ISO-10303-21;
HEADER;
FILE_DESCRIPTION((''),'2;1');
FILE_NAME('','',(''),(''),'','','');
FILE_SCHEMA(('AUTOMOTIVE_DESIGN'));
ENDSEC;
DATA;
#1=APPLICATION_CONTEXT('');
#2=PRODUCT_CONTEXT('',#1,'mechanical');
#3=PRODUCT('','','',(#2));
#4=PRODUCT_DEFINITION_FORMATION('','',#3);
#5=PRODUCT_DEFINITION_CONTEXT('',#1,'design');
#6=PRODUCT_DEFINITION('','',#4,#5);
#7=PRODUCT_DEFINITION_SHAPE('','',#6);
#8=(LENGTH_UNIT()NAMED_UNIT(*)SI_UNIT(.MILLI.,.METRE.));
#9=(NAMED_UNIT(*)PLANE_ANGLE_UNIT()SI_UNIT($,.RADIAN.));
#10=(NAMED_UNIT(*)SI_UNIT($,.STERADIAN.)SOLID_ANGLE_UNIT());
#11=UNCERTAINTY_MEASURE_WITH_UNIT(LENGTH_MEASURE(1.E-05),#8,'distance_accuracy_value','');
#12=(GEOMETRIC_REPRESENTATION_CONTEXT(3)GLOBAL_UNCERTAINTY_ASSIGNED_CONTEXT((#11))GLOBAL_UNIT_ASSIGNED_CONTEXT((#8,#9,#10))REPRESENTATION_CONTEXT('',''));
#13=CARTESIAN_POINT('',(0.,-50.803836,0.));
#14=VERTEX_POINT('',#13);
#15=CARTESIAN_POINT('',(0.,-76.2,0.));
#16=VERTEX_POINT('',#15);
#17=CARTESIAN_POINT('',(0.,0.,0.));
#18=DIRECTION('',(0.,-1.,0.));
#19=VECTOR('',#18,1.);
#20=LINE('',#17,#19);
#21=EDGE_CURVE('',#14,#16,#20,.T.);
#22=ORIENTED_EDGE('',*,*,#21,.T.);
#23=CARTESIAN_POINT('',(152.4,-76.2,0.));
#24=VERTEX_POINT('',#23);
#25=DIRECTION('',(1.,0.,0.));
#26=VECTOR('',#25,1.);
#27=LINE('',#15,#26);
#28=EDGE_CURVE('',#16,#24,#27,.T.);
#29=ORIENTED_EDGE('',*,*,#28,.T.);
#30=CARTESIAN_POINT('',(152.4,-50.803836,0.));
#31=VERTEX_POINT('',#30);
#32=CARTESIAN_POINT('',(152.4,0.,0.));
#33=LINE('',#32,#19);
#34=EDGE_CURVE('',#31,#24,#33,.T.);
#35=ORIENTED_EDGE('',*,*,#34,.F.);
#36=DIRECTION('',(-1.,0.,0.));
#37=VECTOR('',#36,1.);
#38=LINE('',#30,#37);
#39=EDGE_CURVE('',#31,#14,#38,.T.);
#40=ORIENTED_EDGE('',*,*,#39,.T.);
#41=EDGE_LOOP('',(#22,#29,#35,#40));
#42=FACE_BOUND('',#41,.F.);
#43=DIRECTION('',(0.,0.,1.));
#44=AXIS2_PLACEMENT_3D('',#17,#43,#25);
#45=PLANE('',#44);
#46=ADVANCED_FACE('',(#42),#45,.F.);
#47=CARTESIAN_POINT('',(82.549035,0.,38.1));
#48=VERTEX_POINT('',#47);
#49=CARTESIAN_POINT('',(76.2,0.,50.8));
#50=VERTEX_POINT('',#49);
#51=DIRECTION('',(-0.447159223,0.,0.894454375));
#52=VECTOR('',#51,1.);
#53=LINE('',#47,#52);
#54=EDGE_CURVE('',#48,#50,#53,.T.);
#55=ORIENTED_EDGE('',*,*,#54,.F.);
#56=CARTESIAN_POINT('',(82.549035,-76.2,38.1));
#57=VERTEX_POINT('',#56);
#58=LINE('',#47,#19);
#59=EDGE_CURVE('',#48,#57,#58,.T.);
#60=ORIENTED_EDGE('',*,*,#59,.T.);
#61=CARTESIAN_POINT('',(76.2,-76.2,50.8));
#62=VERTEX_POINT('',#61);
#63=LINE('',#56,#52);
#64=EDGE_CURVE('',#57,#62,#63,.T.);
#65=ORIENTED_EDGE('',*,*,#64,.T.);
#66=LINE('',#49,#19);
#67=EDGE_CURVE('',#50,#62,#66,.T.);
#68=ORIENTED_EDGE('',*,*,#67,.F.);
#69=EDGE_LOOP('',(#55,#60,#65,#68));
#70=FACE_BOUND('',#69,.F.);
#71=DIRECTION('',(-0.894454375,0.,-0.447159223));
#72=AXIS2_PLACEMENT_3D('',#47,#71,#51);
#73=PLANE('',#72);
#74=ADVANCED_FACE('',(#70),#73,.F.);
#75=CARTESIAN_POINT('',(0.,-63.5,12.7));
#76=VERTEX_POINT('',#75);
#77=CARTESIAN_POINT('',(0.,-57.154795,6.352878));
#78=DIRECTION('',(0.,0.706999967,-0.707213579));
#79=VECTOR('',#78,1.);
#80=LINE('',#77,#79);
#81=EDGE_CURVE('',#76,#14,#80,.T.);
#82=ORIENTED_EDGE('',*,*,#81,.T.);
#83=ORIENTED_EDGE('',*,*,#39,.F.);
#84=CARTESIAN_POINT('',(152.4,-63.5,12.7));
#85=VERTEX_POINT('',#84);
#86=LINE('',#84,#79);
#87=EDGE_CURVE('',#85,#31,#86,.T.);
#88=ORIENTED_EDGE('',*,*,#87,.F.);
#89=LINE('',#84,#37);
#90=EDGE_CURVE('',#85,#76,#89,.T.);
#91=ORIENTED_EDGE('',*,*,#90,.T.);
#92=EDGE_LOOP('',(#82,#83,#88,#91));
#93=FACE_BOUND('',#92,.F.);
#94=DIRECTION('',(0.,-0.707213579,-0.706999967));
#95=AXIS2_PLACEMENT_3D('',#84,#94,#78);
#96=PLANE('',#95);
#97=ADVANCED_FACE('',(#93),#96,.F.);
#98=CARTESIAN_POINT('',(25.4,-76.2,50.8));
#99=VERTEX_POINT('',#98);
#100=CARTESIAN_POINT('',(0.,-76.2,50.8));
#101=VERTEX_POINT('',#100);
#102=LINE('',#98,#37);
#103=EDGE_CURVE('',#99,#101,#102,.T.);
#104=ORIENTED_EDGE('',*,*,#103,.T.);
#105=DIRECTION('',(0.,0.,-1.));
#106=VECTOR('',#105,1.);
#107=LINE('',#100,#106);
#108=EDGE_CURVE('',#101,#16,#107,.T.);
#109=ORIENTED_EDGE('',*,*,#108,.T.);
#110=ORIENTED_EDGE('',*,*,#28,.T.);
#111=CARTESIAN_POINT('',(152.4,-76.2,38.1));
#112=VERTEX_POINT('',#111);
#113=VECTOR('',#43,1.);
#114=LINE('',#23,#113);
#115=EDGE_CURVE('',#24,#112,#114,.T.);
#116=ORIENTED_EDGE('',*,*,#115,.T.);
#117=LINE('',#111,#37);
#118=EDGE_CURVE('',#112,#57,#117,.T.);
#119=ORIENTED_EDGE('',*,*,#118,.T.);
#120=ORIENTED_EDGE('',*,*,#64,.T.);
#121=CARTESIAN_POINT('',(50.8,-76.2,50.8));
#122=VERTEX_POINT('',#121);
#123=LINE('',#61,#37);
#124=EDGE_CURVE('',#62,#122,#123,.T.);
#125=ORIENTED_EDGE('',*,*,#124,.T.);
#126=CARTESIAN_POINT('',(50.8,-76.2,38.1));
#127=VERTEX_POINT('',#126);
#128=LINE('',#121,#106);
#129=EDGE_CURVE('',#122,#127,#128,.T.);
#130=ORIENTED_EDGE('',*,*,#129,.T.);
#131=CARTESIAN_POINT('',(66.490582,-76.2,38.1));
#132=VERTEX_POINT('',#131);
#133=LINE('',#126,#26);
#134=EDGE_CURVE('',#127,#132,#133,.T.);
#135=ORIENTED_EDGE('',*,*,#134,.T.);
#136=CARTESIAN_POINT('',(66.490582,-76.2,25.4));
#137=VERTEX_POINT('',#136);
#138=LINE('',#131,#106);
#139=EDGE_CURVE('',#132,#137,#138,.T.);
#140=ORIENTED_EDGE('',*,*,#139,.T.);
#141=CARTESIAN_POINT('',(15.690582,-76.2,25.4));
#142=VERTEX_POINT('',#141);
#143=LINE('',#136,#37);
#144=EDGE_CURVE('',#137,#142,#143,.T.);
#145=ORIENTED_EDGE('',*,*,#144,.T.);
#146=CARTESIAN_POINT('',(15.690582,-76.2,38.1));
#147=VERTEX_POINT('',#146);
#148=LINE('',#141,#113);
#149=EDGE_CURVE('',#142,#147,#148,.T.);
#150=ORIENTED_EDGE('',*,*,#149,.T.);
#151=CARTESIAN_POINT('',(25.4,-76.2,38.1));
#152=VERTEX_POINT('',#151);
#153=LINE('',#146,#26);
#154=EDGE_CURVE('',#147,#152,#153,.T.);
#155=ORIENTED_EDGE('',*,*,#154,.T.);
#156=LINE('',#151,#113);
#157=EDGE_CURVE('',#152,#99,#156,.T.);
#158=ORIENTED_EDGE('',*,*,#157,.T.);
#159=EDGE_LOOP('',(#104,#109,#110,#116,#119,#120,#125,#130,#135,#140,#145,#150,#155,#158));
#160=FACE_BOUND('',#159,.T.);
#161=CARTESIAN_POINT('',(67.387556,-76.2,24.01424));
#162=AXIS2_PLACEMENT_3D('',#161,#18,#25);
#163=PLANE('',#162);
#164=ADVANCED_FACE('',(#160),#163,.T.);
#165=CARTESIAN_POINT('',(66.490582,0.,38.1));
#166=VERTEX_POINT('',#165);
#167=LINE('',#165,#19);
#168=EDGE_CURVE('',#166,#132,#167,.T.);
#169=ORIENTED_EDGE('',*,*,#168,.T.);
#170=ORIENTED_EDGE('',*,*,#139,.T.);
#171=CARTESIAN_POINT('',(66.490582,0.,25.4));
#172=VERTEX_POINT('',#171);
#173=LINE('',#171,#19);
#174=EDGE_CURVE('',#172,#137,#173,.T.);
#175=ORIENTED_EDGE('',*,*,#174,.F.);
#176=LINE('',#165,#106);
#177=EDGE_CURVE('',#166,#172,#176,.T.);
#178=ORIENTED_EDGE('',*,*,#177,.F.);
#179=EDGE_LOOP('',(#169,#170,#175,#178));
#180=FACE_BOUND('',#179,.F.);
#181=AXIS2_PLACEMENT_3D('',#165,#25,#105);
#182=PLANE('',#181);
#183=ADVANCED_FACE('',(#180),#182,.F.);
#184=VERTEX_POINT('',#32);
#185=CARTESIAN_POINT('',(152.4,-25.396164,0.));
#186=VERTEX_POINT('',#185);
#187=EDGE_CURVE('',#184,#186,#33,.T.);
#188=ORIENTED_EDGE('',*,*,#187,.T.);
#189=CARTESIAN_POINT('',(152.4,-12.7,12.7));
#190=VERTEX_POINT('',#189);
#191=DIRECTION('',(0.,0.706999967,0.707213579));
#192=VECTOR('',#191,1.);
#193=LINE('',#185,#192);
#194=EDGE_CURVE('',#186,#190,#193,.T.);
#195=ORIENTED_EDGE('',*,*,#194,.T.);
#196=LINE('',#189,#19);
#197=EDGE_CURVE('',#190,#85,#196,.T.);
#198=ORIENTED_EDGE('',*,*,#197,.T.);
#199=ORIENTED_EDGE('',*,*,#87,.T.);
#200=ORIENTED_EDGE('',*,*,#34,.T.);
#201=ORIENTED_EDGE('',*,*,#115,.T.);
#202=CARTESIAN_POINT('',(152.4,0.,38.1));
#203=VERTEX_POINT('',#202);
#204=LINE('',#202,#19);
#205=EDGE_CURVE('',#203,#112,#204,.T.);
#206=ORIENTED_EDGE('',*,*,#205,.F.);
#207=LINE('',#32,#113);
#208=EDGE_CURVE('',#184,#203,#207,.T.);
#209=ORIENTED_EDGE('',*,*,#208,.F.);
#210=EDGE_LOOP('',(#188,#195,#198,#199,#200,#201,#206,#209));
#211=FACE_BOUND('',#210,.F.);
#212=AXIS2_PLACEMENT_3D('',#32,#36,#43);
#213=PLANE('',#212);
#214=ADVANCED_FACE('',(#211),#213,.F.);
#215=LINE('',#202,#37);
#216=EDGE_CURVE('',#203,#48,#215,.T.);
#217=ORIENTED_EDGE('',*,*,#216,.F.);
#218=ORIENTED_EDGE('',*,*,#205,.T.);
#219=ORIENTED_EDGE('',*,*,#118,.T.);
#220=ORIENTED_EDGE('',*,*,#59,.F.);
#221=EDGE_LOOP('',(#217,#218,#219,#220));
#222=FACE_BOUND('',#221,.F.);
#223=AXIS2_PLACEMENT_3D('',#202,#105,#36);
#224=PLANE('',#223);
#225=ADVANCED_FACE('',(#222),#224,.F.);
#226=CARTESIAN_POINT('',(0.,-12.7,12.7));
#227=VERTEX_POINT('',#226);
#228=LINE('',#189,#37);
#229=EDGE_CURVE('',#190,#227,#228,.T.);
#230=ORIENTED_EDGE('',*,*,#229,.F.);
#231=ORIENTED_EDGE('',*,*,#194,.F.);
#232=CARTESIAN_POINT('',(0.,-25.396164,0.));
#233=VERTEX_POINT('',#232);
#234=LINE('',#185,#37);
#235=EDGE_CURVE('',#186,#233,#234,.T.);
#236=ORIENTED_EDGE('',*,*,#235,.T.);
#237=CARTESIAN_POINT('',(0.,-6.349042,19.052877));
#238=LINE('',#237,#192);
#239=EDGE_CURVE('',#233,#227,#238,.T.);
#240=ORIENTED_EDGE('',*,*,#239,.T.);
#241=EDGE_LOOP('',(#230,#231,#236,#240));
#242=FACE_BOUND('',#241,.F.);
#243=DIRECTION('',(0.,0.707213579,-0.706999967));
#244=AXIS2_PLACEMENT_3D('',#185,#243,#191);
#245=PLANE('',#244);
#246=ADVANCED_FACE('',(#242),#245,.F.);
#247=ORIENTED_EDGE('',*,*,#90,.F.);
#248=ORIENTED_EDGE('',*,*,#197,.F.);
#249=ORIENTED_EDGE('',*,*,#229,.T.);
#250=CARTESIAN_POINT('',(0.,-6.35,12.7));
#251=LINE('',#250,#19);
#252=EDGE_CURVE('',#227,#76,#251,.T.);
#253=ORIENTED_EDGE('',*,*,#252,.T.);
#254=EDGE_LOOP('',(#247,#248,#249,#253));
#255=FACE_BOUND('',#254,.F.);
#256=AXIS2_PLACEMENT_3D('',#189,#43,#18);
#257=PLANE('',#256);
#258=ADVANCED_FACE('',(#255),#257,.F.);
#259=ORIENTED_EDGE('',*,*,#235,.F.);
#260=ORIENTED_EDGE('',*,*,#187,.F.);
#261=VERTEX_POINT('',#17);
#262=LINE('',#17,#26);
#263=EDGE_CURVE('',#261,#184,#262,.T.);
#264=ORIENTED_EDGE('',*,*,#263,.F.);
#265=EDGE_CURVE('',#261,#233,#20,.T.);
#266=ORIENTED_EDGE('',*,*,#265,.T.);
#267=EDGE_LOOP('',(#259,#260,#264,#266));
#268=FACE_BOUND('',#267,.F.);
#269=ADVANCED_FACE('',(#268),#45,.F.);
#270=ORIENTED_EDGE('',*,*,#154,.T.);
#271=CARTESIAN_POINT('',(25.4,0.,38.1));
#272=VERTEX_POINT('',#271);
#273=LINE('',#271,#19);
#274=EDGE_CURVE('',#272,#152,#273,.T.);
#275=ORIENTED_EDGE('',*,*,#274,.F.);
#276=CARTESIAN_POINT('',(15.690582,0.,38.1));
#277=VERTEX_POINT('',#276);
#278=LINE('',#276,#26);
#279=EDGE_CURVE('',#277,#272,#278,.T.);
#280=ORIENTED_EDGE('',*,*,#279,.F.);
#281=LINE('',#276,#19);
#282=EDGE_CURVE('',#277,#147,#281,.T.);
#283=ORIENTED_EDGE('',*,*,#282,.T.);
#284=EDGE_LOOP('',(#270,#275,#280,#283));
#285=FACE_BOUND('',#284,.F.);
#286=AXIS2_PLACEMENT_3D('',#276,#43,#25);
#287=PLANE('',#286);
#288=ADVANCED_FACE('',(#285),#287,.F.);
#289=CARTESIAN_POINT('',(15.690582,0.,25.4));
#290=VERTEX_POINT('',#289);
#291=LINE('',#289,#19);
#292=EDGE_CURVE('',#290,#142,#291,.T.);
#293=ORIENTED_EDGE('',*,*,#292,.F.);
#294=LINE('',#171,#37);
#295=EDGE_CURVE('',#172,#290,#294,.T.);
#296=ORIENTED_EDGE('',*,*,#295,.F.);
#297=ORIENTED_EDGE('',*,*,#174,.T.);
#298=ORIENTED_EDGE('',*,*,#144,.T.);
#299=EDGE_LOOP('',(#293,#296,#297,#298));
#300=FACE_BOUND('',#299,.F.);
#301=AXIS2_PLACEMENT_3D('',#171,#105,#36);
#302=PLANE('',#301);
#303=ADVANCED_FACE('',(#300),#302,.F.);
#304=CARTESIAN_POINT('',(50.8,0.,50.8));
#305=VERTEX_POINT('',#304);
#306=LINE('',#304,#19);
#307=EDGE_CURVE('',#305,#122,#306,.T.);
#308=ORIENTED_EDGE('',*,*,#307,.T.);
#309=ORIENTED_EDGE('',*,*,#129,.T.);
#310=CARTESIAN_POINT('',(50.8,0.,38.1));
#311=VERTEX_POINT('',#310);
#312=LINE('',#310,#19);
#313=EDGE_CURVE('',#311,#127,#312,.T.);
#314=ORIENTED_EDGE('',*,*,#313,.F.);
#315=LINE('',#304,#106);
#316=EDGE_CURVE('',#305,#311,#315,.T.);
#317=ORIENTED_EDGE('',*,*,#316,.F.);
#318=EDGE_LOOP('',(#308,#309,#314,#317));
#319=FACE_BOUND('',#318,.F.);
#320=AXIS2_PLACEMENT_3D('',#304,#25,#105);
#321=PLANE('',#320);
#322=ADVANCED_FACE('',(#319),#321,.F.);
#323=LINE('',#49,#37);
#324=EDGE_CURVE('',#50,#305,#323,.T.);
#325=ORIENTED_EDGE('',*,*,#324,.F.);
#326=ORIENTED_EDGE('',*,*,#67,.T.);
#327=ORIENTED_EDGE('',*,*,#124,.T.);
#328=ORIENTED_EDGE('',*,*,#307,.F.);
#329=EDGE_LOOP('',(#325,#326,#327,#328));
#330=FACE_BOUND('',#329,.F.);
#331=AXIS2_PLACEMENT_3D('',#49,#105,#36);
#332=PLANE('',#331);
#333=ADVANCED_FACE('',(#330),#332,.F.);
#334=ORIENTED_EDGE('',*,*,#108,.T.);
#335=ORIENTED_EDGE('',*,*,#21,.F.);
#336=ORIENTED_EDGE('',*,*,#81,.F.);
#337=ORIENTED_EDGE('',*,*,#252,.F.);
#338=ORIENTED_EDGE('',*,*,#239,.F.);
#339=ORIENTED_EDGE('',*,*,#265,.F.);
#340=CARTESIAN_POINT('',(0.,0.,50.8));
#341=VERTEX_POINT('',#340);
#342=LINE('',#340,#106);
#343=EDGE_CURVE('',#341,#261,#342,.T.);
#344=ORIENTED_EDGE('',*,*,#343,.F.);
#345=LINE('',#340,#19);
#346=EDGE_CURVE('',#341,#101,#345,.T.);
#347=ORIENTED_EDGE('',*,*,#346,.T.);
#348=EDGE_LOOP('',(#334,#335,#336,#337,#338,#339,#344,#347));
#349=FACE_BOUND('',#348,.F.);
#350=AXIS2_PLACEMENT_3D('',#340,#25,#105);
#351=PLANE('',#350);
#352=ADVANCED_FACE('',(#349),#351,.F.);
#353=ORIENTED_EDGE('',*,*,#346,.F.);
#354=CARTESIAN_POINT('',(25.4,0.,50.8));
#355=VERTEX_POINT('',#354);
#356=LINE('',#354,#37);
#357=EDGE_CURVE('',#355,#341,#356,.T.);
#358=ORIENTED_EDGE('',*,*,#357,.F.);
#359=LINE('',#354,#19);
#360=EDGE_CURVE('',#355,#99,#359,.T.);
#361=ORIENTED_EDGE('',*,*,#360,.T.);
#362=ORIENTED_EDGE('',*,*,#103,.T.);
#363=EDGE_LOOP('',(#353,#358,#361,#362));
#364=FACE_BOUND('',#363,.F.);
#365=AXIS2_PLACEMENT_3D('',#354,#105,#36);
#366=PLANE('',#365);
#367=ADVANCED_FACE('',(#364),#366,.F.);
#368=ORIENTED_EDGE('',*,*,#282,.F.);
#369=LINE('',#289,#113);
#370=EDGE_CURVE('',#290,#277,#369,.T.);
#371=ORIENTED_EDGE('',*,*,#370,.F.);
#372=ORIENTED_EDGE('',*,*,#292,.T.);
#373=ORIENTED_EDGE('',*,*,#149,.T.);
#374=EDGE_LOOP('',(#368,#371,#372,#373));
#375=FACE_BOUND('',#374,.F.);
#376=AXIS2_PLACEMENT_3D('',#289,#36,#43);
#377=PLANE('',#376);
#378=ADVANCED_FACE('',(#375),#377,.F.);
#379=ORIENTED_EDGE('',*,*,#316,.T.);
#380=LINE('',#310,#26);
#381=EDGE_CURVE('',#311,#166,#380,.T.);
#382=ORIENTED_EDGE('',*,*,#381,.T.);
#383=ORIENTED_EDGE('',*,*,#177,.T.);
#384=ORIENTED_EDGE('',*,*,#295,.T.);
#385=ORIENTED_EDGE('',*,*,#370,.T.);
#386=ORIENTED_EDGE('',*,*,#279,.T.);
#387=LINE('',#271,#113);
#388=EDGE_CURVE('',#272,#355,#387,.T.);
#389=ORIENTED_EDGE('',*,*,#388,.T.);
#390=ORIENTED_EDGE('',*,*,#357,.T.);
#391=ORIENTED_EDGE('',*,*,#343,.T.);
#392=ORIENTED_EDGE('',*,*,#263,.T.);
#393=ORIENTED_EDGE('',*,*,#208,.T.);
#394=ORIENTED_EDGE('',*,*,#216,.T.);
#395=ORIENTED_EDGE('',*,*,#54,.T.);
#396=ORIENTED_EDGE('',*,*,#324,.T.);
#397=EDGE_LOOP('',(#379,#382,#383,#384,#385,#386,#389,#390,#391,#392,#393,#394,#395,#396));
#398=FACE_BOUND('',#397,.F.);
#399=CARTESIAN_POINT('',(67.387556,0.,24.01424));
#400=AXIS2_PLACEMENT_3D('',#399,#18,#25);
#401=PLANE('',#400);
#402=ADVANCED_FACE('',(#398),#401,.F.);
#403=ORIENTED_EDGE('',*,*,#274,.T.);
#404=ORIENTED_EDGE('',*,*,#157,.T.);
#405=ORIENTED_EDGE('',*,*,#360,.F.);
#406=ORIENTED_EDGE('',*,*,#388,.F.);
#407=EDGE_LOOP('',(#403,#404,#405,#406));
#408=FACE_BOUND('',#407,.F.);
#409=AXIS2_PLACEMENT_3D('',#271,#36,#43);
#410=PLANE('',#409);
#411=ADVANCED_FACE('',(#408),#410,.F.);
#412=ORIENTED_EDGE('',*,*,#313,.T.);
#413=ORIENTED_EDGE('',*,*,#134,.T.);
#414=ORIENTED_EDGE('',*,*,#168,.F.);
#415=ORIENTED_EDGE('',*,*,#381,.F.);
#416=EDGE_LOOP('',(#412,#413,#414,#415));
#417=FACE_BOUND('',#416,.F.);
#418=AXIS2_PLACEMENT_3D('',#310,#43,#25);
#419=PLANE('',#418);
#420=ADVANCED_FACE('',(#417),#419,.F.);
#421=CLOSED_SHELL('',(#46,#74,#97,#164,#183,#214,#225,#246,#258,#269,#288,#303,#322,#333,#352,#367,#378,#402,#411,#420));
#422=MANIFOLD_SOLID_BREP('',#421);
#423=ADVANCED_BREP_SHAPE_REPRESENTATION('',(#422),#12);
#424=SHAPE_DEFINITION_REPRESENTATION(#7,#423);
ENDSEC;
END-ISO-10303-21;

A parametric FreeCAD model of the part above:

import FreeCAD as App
import Part
import Sketcher
Q = App.Units.Quantity


def add_polygon(sketch, points):
    """Adds a closed chain of lines whose ends are joined by coincident constraints."""
    first, n = sketch.GeometryCount, len(points)
    for a, b in zip(points, points[1:] + points[:1]):
        sketch.addGeometry(Part.LineSegment(App.Vector(*a, 0), App.Vector(*b, 0)), False)
    for i in range(n):
        sketch.addConstraint(Sketcher.Constraint("Coincident", first + i, 2, first + (i + 1) % n, 1))

doc = App.newDocument("Part")
params = doc.addObject("Spreadsheet::Sheet", "Params")
for row, (alias, value) in enumerate([
    ("sketch1_width", "6 in"),
    ("sketch1_width2", "1 in"),
    ("sketch1_width3", "2 in"),
    ("sketch1_height", "1.5 in"),
    ("sketch1_length", "0.559 in"),
    ("pad1_length", "3 in"),
    ("sketch2_width", "2 in"),
    ("sketch2_length", "0.707 in"),
    ("pocket1_length", "8.24 in"),
], start=1):
    params.set(f"A{row}", alias)
    params.set(f"B{row}", "=" + value)
    params.setAlias(f"B{row}", alias)

body = doc.addObject("PartDesign::Body", "Body")

# Sketch on XZ plane
sketch1 = body.newObject("Sketcher::SketchObject", "Sketch")
sketch1.AttachmentSupport = (doc.getObject("XZ_Plane"), [""])
sketch1.MapMode = "FlatFace"
add_polygon(sketch1, [(0, 50.8), (0, 0), (152.4, 0), (152.4, 38.1), (82.549035, 38.1), (76.2, 50.8), (50.8, 50.8), (50.8, 38.1), (66.490582, 38.1), (66.490582, 25.4), (15.690582, 25.4), (15.690582, 38.1), (25.4, 38.1), (25.4, 50.8)])  # lines 0-13
sketch1.addConstraint(Sketcher.Constraint("Vertical", 0))
sketch1.addConstraint(Sketcher.Constraint("Horizontal", 1))
sketch1.addConstraint(Sketcher.Constraint("Vertical", 2))
sketch1.addConstraint(Sketcher.Constraint("Horizontal", 3))
sketch1.addConstraint(Sketcher.Constraint("Horizontal", 5))
sketch1.addConstraint(Sketcher.Constraint("Vertical", 6))
sketch1.addConstraint(Sketcher.Constraint("Horizontal", 7))
sketch1.addConstraint(Sketcher.Constraint("Vertical", 8))
sketch1.addConstraint(Sketcher.Constraint("Horizontal", 9))
sketch1.addConstraint(Sketcher.Constraint("Vertical", 10))
sketch1.addConstraint(Sketcher.Constraint("Horizontal", 11))
sketch1.addConstraint(Sketcher.Constraint("Vertical", 12))
sketch1.addConstraint(Sketcher.Constraint("Horizontal", 13))
sketch1.addConstraint(Sketcher.Constraint("Coincident", 0, 2, -1, 1))
sketch1.addConstraint(Sketcher.Constraint("Horizontal", 3, 2, 6, 2))
sketch1.addConstraint(Sketcher.Constraint("Horizontal", 7, 2, 10, 2))
sketch1.addConstraint(Sketcher.Constraint("Horizontal", 5, 2, 12, 2))
sketch1.addConstraint(Sketcher.Constraint("Equal", 5, 13))
sketch1.addConstraint(Sketcher.Constraint("Equal", 9, 0))
sketch1.addConstraint(Sketcher.Constraint("Equal", 6, 8))
sketch1.addConstraint(Sketcher.Constraint("DistanceX", 1, 1, 1, 2, Q("6 in")))
sketch1.addConstraint(Sketcher.Constraint("DistanceX", 5, 2, 5, 1, Q("1 in")))
sketch1.addConstraint(Sketcher.Constraint("DistanceX", 9, 2, 9, 1, Q("2 in")))
sketch1.addConstraint(Sketcher.Constraint("DistanceY", 2, 1, 2, 2, Q("1.5 in")))
sketch1.addConstraint(Sketcher.Constraint("DistanceX", -1, 1, 4, 2, Q("3 in")))
sketch1.addConstraint(Sketcher.Constraint("Distance", 4, Q("0.559 in")))
sketch1.addConstraint(Sketcher.Constraint("DistanceX", 7, 1, 7, 2, Q("15.690582 mm")))
sketch1.setExpression("Constraints[34]", "Params.sketch1_width")
sketch1.setExpression("Constraints[35]", "Params.sketch1_width2")
sketch1.setExpression("Constraints[36]", "Params.sketch1_width3")
sketch1.setExpression("Constraints[37]", "Params.sketch1_height")
sketch1.setExpression("Constraints[39]", "Params.sketch1_length")
pad1 = body.newObject("PartDesign::Pad", "Pad")
pad1.Profile = sketch1
pad1.setExpression("Length", "Params.pad1_length")

# Sketch on YZ plane
sketch2 = body.newObject("Sketcher::SketchObject", "Sketch001")
sketch2.AttachmentSupport = (doc.getObject("YZ_Plane"), [""])
sketch2.MapMode = "FlatFace"
sketch2.AttachmentOffset = App.Placement(App.Vector(0, 0, 6 * 25.4), App.Rotation())
add_polygon(sketch2, [(-63.5, 12.7), (-50.803836, 0), (-25.396164, 0), (-12.7, 12.7)])  # lines 0-3
sketch2.addConstraint(Sketcher.Constraint("Horizontal", 1))
sketch2.addConstraint(Sketcher.Constraint("Horizontal", 3))
sketch2.addConstraint(Sketcher.Constraint("PointOnObject", 0, 2, -1))
sketch2.addConstraint(Sketcher.Constraint("Equal", 0, 2))
sketch2.addConstraint(Sketcher.Constraint("DistanceX", 3, 2, 3, 1, Q("2 in")))
sketch2.addConstraint(Sketcher.Constraint("DistanceX", 2, 2, -1, 1, Q("0.5 in")))
sketch2.addConstraint(Sketcher.Constraint("DistanceY", -1, 1, 2, 2, Q("0.5 in")))
sketch2.addConstraint(Sketcher.Constraint("Distance", 0, Q("0.707 in")))
sketch2.setExpression("Constraints[8]", "Params.sketch2_width")
sketch2.setExpression("Constraints[11]", "Params.sketch2_length")
pocket1 = body.newObject("PartDesign::Pocket", "Pocket")
pocket1.Profile = sketch2
pocket1.setExpression("Length", "Params.pocket1_length")

doc.recompute()
